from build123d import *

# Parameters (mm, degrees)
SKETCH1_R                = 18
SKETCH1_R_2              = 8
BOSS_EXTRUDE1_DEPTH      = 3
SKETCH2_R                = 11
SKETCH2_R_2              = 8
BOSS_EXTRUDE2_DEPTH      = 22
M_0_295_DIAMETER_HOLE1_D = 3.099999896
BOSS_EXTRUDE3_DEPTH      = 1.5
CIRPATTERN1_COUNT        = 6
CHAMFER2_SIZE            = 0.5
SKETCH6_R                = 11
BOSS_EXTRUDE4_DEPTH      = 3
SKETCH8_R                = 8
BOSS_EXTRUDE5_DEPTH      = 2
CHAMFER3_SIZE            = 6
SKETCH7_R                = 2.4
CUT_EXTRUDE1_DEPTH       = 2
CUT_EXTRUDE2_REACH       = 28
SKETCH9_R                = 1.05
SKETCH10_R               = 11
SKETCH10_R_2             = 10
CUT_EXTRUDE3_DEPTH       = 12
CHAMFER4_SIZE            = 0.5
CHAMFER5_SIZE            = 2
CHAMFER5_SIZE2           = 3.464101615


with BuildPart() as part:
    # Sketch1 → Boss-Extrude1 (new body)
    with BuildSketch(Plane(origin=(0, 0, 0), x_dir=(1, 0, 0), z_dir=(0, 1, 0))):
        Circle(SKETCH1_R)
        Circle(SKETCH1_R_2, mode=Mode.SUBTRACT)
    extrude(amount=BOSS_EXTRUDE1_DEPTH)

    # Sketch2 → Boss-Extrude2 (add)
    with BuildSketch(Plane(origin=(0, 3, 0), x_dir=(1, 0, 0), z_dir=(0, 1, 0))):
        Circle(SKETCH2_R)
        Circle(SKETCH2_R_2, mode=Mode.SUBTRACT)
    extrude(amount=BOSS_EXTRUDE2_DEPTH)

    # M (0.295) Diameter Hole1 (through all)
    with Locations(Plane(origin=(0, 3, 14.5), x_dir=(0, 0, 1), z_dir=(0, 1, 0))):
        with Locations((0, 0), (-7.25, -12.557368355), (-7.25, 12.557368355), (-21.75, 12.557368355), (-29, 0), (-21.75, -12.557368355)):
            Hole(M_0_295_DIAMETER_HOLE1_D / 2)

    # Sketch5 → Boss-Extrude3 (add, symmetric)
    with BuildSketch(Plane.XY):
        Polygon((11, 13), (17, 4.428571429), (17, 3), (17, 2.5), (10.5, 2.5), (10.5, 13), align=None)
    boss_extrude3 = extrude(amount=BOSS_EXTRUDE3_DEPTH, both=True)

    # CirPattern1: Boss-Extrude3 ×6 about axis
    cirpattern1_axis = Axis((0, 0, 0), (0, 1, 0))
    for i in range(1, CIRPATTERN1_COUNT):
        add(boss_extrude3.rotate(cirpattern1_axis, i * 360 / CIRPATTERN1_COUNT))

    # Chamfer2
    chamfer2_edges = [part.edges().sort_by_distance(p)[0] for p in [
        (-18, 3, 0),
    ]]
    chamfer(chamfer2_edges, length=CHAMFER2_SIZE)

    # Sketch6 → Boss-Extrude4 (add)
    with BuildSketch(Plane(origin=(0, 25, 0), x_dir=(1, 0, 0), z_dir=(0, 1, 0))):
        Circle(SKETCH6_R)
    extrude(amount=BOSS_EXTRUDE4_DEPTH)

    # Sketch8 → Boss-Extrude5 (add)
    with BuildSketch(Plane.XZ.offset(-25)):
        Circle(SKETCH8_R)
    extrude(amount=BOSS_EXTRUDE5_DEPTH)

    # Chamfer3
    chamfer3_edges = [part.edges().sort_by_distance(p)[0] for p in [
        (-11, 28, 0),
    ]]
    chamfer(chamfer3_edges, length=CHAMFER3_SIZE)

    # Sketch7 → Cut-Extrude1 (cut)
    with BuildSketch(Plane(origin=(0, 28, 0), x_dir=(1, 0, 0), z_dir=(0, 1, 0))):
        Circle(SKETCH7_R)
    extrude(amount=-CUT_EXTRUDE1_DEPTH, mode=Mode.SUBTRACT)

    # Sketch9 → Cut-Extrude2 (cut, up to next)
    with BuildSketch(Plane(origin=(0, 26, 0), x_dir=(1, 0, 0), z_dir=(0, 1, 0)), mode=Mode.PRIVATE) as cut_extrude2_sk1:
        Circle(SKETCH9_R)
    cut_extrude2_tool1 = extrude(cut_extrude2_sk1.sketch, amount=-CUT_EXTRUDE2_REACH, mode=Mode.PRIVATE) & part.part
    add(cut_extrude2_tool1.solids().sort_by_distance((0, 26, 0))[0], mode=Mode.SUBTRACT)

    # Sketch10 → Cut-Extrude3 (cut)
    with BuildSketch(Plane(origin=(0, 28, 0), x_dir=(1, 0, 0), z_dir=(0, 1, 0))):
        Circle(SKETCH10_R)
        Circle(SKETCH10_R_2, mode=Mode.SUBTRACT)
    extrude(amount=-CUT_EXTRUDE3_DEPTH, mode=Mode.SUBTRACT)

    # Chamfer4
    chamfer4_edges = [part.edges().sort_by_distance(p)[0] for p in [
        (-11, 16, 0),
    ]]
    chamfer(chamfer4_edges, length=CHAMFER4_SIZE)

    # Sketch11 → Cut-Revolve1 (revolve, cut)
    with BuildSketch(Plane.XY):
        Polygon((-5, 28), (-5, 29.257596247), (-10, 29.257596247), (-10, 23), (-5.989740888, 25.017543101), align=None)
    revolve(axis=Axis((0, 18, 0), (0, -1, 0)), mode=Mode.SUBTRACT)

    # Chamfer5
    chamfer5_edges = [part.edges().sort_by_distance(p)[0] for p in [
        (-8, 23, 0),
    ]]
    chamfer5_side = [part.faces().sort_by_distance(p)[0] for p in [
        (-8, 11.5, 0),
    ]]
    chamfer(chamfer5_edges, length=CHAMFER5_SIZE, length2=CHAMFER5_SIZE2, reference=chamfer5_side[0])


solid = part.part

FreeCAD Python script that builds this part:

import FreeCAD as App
import Part
import Sketcher

V = App.Vector


def edges_at(feature, points):
    """Names of the edges that pass closest to the given points."""
    edges = feature.Shape.Edges
    near = lambda p: min(range(len(edges)), key=lambda i: edges[i].distToShape(Part.Vertex(*p))[0])
    return sorted({f"Edge{near(p) + 1}" for p in points})

doc = App.newDocument("Part")
body = doc.addObject("PartDesign::Body", "Body")

sketch1 = body.newObject("Sketcher::SketchObject", "Sketch")
sketch1.AttachmentSupport = (doc.getObject("XZ_Plane"), [""])
sketch1.MapMode = "FlatFace"
sketch1.addGeometry(Part.Circle(V(0, 0, 0), V(0, 0, 1), 18), False)
sketch1.addGeometry(Part.Circle(V(0, 0, 0), V(0, 0, 1), 8), False)
sketch1.addConstraint(Sketcher.Constraint("Coincident", 0, 3, -1, 1))
sketch1.addConstraint(Sketcher.Constraint("Coincident", 1, 3, -1, 1))
sketch1.addConstraint(Sketcher.Constraint("Diameter", 0, 36.0))
sketch1.addConstraint(Sketcher.Constraint("Diameter", 1, 16.0))
pad1 = body.newObject("PartDesign::Pad", "Pad")
pad1.Profile = sketch1
pad1.Length = 3
pad1.Reversed = True

sketch2 = body.newObject("Sketcher::SketchObject", "Sketch001")
sketch2.AttachmentSupport = (doc.getObject("XZ_Plane"), [""])
sketch2.MapMode = "FlatFace"
sketch2.AttachmentOffset = App.Placement(V(0, 0, -3), App.Rotation())
sketch2.addGeometry(Part.Circle(V(0, 0, 0), V(0, 0, 1), 11), False)
sketch2.addGeometry(Part.Circle(V(0, 0, 0), V(0, 0, 1), 8), False)
sketch2.addConstraint(Sketcher.Constraint("Coincident", 0, 3, -1, 1))
sketch2.addConstraint(Sketcher.Constraint("Coincident", 1, 3, -1, 1))
sketch2.addConstraint(Sketcher.Constraint("Diameter", 0, 22.0))
sketch2.addConstraint(Sketcher.Constraint("Diameter", 1, 16.0))
pad2 = body.newObject("PartDesign::Pad", "Pad001")
pad2.Profile = sketch2
pad2.Length = 22
pad2.Reversed = True

sketch3 = body.newObject("Sketcher::SketchObject", "Sketch002")
sketch3.AttachmentSupport = (doc.getObject("XZ_Plane"), [""])
sketch3.MapMode = "FlatFace"
sketch3.AttachmentOffset = App.Placement(V(0, 0, -3), App.Rotation())
sketch3.addGeometry(Part.Circle(V(0, 14.5, 0), V(0, 0, 1), 1.5), False)
sketch3.addGeometry(Part.Circle(V(-12.6, 7.2, 0), V(0, 0, 1), 1.5), False)
sketch3.addGeometry(Part.Circle(V(12.6, 7.2, 0), V(0, 0, 1), 1.5), False)
sketch3.addGeometry(Part.Circle(V(12.6, -7.2, 0), V(0, 0, 1), 1.5), False)
sketch3.addGeometry(Part.Circle(V(0, -14.5, 0), V(0, 0, 1), 1.5), False)
sketch3.addGeometry(Part.Circle(V(-12.6, -7.2, 0), V(0, 0, 1), 1.5), False)
sketch3.addConstraint(Sketcher.Constraint("Equal", 0, 1))
sketch3.addConstraint(Sketcher.Constraint("Equal", 1, 2))
sketch3.addConstraint(Sketcher.Constraint("Equal", 2, 3))
sketch3.addConstraint(Sketcher.Constraint("Equal", 3, 4))
sketch3.addConstraint(Sketcher.Constraint("Equal", 4, 5))
sketch3.addConstraint(Sketcher.Constraint("Symmetric", 1, 3, 3, 3, -1, 1))
sketch3.addConstraint(Sketcher.Constraint("Symmetric", 0, 3, 4, 3, -1, 1))
sketch3.addConstraint(Sketcher.Constraint("Symmetric", 2, 3, 5, 3, -1, 1))
sketch3.addConstraint(Sketcher.Constraint("Symmetric", 1, 3, 2, 3, -2))
sketch3.addConstraint(Sketcher.Constraint("PointOnObject", 0, 3, -2))
sketch3.addConstraint(Sketcher.Constraint("Diameter", 0, 3.1))
sketch3.addConstraint(Sketcher.Constraint("DistanceY", 4, 3, 0, 3, 29.0))
sketch3.addConstraint(Sketcher.Constraint("DistanceY", 3, 3, 2, 3, 14.5))
sketch3.addConstraint(Sketcher.Constraint("DistanceX", 1, 3, -1, 1, 12.557368))
doc.recompute()
hole = body.newObject("PartDesign::Hole", "Hole")
hole.Profile = sketch3
hole.ThreadType = "None"
hole.Diameter = 3.1
hole.DepthType = "ThroughAll"
hole.Reversed = True

sketch4 = body.newObject("Sketcher::SketchObject", "Sketch003")
sketch4.AttachmentSupport = (doc.getObject("XY_Plane"), [""])
sketch4.MapMode = "FlatFace"
sketch4.addGeometry(Part.LineSegment(V(17, 4.4, 0), V(11, 13, 0)), False)
sketch4.addGeometry(Part.LineSegment(V(11, 13, 0), V(10.5, 13, 0)), False)
sketch4.addGeometry(Part.LineSegment(V(10.5, 13, 0), V(10.5, 2.5, 0)), False)
sketch4.addGeometry(Part.LineSegment(V(10.5, 2.5, 0), V(17, 2.5, 0)), False)
sketch4.addGeometry(Part.LineSegment(V(17, 2.5, 0), V(17, 4.4, 0)), False)
sketch4.addConstraint(Sketcher.Constraint("Coincident", 0, 2, 1, 1))
sketch4.addConstraint(Sketcher.Constraint("Coincident", 1, 2, 2, 1))
sketch4.addConstraint(Sketcher.Constraint("Coincident", 2, 2, 3, 1))
sketch4.addConstraint(Sketcher.Constraint("Coincident", 3, 2, 4, 1))
sketch4.addConstraint(Sketcher.Constraint("Coincident", 4, 2, 0, 1))
sketch4.addConstraint(Sketcher.Constraint("Horizontal", 1))
sketch4.addConstraint(Sketcher.Constraint("Vertical", 2))
sketch4.addConstraint(Sketcher.Constraint("Horizontal", 3))
sketch4.addConstraint(Sketcher.Constraint("Vertical", 4))
sketch4.addConstraint(Sketcher.Constraint("DistanceX", 1, 2, 1, 1, 0.5))
sketch4.addConstraint(Sketcher.Constraint("DistanceX", 3, 1, 3, 2, 6.5))
sketch4.addConstraint(Sketcher.Constraint("DistanceY", 2, 2, 2, 1, 10.5))
sketch4.addConstraint(Sketcher.Constraint("DistanceX", -1, 1, 0, 2, 11.0))
sketch4.addConstraint(Sketcher.Constraint("DistanceY", -1, 1, 0, 2, 13.0))
sketch4.addConstraint(Sketcher.Constraint("DistanceY", 4, 1, 4, 2, 1.928571))
pad3 = body.newObject("PartDesign::Pad", "Pad002")
pad3.Profile = sketch4
pad3.Length = 3
pad3.Midplane = True
doc.recompute()

polarpattern = body.newObject("PartDesign::PolarPattern", "PolarPattern")
polarpattern.Originals = [pad3]
polarpattern.Axis = (doc.getObject("Y_Axis"), [""])
polarpattern.Angle = 360
polarpattern.Occurrences = 6
body.Tip = polarpattern
doc.recompute()

chamfer = body.newObject("PartDesign::Chamfer", "Chamfer")
chamfer.Base = (polarpattern, edges_at(polarpattern, [(-18, 3, 0)]))
chamfer.Size = 0.5

sketch5 = body.newObject("Sketcher::SketchObject", "Sketch004")
sketch5.AttachmentSupport = (doc.getObject("XZ_Plane"), [""])
sketch5.MapMode = "FlatFace"
sketch5.AttachmentOffset = App.Placement(V(0, 0, -25), App.Rotation())
sketch5.addGeometry(Part.Circle(V(0, 0, 0), V(0, 0, 1), 11), False)
sketch5.addConstraint(Sketcher.Constraint("Coincident", 0, 3, -1, 1))
sketch5.addConstraint(Sketcher.Constraint("Diameter", 0, 22.0))
pad4 = body.newObject("PartDesign::Pad", "Pad003")
pad4.Profile = sketch5
pad4.Length = 3
pad4.Reversed = True

sketch6 = body.newObject("Sketcher::SketchObject", "Sketch005")
sketch6.AttachmentSupport = (doc.getObject("XZ_Plane"), [""])
sketch6.MapMode = "FlatFace"
sketch6.AttachmentOffset = App.Placement(V(0, 0, -25), App.Rotation())
sketch6.addGeometry(Part.Circle(V(0, 0, 0), V(0, 0, 1), 8), False)
sketch6.addConstraint(Sketcher.Constraint("Coincident", 0, 3, -1, 1))
sketch6.addConstraint(Sketcher.Constraint("Diameter", 0, 16.0))
pad5 = body.newObject("PartDesign::Pad", "Pad004")
pad5.Profile = sketch6
pad5.Length = 2
doc.recompute()

chamfer2 = body.newObject("PartDesign::Chamfer", "Chamfer001")
chamfer2.Base = (pad5, edges_at(pad5, [(-11, 28, 0)]))
chamfer2.Size = 6

sketch7 = body.newObject("Sketcher::SketchObject", "Sketch006")
sketch7.AttachmentSupport = (doc.getObject("XZ_Plane"), [""])
sketch7.MapMode = "FlatFace"
sketch7.AttachmentOffset = App.Placement(V(0, 0, -28), App.Rotation())
sketch7.addGeometry(Part.Circle(V(0, 0, 0), V(0, 0, 1), 2.4), False)
sketch7.addConstraint(Sketcher.Constraint("Coincident", 0, 3, -1, 1))
sketch7.addConstraint(Sketcher.Constraint("Diameter", 0, 4.8))
pocket1 = body.newObject("PartDesign::Pocket", "Pocket")
pocket1.Profile = sketch7
pocket1.Length = 2
pocket1.Reversed = True

sketch8 = body.newObject("Sketcher::SketchObject", "Sketch007")
sketch8.AttachmentSupport = (doc.getObject("XZ_Plane"), [""])
sketch8.MapMode = "FlatFace"
sketch8.AttachmentOffset = App.Placement(V(0, 0, -26), App.Rotation())
sketch8.addGeometry(Part.Circle(V(0, 0, 0), V(0, 0, 1), 1.1), False)
sketch8.addConstraint(Sketcher.Constraint("Coincident", 0, 3, -1, 1))
sketch8.addConstraint(Sketcher.Constraint("Diameter", 0, 2.1))
pocket2 = body.newObject("PartDesign::Pocket", "Pocket001")
pocket2.Profile = sketch8
pocket2.Type = "UpToFirst"
pocket2.Reversed = True

sketch9 = body.newObject("Sketcher::SketchObject", "Sketch008")
sketch9.AttachmentSupport = (doc.getObject("XZ_Plane"), [""])
sketch9.MapMode = "FlatFace"
sketch9.AttachmentOffset = App.Placement(V(0, 0, -28), App.Rotation())
sketch9.addGeometry(Part.Circle(V(0, 0, 0), V(0, 0, 1), 11), False)
sketch9.addGeometry(Part.Circle(V(0, 0, 0), V(0, 0, 1), 10), False)
sketch9.addConstraint(Sketcher.Constraint("Coincident", 0, 3, -1, 1))
sketch9.addConstraint(Sketcher.Constraint("Coincident", 1, 3, -1, 1))
sketch9.addConstraint(Sketcher.Constraint("Diameter", 0, 22.0))
sketch9.addConstraint(Sketcher.Constraint("Diameter", 1, 20.0))
pocket3 = body.newObject("PartDesign::Pocket", "Pocket002")
pocket3.Profile = sketch9
pocket3.Length = 12
pocket3.Reversed = True
doc.recompute()

chamfer3 = body.newObject("PartDesign::Chamfer", "Chamfer002")
chamfer3.Base = (pocket3, edges_at(pocket3, [(-11, 16, 0)]))
chamfer3.Size = 0.5

sketch10 = body.newObject("Sketcher::SketchObject", "Sketch009")
sketch10.AttachmentSupport = (doc.getObject("XY_Plane"), [""])
sketch10.MapMode = "FlatFace"
sketch10.addGeometry(Part.LineSegment(V(-5, 28, 0), V(-5, 29.3, 0)), False)
sketch10.addGeometry(Part.LineSegment(V(-5, 29.3, 0), V(-10, 29.3, 0)), False)
sketch10.addGeometry(Part.LineSegment(V(-10, 29.3, 0), V(-10, 23, 0)), False)
sketch10.addGeometry(Part.LineSegment(V(-10, 23, 0), V(-6, 25, 0)), False)
sketch10.addGeometry(Part.LineSegment(V(-6, 25, 0), V(-5, 28, 0)), False)
sketch10.addConstraint(Sketcher.Constraint("Coincident", 0, 2, 1, 1))
sketch10.addConstraint(Sketcher.Constraint("Coincident", 1, 2, 2, 1))
sketch10.addConstraint(Sketcher.Constraint("Coincident", 2, 2, 3, 1))
sketch10.addConstraint(Sketcher.Constraint("Coincident", 3, 2, 4, 1))
sketch10.addConstraint(Sketcher.Constraint("Coincident", 4, 2, 0, 1))
sketch10.addConstraint(Sketcher.Constraint("Vertical", 0))
sketch10.addConstraint(Sketcher.Constraint("Horizontal", 1))
sketch10.addConstraint(Sketcher.Constraint("Vertical", 2))
sketch10.addConstraint(Sketcher.Constraint("DistanceX", 1, 2, 1, 1, 5.0))
sketch10.addConstraint(Sketcher.Constraint("DistanceX", 0, 2, -1, 1, 5.0))
sketch10.addConstraint(Sketcher.Constraint("DistanceY", -1, 1, 2, 2, 23.0))
sketch10.addConstraint(Sketcher.Constraint("DistanceY", -1, 1, 4, 2, 28.0))
sketch10.addConstraint(Sketcher.Constraint("Distance", 3, 4.489171))
sketch10.addConstraint(Sketcher.Constraint("DistanceY", 0, 1, 0, 2, 1.257596))
sketch10.addConstraint(Sketcher.Constraint("DistanceX", 3, 2, -1, 1, 5.989741))
groove = body.newObject("PartDesign::Groove", "Groove")
groove.Profile = sketch10
groove.ReferenceAxis = (sketch10, ["V_Axis"])
groove.Angle = 360
doc.recompute()

chamfer4 = body.newObject("PartDesign::Chamfer", "Chamfer003")
chamfer4.Base = (groove, edges_at(groove, [(-8, 23, 0)]))
chamfer4.ChamferType = "Two distances"
chamfer4.Size = 2
chamfer4.Size2 = 3.464102

doc.recompute()
